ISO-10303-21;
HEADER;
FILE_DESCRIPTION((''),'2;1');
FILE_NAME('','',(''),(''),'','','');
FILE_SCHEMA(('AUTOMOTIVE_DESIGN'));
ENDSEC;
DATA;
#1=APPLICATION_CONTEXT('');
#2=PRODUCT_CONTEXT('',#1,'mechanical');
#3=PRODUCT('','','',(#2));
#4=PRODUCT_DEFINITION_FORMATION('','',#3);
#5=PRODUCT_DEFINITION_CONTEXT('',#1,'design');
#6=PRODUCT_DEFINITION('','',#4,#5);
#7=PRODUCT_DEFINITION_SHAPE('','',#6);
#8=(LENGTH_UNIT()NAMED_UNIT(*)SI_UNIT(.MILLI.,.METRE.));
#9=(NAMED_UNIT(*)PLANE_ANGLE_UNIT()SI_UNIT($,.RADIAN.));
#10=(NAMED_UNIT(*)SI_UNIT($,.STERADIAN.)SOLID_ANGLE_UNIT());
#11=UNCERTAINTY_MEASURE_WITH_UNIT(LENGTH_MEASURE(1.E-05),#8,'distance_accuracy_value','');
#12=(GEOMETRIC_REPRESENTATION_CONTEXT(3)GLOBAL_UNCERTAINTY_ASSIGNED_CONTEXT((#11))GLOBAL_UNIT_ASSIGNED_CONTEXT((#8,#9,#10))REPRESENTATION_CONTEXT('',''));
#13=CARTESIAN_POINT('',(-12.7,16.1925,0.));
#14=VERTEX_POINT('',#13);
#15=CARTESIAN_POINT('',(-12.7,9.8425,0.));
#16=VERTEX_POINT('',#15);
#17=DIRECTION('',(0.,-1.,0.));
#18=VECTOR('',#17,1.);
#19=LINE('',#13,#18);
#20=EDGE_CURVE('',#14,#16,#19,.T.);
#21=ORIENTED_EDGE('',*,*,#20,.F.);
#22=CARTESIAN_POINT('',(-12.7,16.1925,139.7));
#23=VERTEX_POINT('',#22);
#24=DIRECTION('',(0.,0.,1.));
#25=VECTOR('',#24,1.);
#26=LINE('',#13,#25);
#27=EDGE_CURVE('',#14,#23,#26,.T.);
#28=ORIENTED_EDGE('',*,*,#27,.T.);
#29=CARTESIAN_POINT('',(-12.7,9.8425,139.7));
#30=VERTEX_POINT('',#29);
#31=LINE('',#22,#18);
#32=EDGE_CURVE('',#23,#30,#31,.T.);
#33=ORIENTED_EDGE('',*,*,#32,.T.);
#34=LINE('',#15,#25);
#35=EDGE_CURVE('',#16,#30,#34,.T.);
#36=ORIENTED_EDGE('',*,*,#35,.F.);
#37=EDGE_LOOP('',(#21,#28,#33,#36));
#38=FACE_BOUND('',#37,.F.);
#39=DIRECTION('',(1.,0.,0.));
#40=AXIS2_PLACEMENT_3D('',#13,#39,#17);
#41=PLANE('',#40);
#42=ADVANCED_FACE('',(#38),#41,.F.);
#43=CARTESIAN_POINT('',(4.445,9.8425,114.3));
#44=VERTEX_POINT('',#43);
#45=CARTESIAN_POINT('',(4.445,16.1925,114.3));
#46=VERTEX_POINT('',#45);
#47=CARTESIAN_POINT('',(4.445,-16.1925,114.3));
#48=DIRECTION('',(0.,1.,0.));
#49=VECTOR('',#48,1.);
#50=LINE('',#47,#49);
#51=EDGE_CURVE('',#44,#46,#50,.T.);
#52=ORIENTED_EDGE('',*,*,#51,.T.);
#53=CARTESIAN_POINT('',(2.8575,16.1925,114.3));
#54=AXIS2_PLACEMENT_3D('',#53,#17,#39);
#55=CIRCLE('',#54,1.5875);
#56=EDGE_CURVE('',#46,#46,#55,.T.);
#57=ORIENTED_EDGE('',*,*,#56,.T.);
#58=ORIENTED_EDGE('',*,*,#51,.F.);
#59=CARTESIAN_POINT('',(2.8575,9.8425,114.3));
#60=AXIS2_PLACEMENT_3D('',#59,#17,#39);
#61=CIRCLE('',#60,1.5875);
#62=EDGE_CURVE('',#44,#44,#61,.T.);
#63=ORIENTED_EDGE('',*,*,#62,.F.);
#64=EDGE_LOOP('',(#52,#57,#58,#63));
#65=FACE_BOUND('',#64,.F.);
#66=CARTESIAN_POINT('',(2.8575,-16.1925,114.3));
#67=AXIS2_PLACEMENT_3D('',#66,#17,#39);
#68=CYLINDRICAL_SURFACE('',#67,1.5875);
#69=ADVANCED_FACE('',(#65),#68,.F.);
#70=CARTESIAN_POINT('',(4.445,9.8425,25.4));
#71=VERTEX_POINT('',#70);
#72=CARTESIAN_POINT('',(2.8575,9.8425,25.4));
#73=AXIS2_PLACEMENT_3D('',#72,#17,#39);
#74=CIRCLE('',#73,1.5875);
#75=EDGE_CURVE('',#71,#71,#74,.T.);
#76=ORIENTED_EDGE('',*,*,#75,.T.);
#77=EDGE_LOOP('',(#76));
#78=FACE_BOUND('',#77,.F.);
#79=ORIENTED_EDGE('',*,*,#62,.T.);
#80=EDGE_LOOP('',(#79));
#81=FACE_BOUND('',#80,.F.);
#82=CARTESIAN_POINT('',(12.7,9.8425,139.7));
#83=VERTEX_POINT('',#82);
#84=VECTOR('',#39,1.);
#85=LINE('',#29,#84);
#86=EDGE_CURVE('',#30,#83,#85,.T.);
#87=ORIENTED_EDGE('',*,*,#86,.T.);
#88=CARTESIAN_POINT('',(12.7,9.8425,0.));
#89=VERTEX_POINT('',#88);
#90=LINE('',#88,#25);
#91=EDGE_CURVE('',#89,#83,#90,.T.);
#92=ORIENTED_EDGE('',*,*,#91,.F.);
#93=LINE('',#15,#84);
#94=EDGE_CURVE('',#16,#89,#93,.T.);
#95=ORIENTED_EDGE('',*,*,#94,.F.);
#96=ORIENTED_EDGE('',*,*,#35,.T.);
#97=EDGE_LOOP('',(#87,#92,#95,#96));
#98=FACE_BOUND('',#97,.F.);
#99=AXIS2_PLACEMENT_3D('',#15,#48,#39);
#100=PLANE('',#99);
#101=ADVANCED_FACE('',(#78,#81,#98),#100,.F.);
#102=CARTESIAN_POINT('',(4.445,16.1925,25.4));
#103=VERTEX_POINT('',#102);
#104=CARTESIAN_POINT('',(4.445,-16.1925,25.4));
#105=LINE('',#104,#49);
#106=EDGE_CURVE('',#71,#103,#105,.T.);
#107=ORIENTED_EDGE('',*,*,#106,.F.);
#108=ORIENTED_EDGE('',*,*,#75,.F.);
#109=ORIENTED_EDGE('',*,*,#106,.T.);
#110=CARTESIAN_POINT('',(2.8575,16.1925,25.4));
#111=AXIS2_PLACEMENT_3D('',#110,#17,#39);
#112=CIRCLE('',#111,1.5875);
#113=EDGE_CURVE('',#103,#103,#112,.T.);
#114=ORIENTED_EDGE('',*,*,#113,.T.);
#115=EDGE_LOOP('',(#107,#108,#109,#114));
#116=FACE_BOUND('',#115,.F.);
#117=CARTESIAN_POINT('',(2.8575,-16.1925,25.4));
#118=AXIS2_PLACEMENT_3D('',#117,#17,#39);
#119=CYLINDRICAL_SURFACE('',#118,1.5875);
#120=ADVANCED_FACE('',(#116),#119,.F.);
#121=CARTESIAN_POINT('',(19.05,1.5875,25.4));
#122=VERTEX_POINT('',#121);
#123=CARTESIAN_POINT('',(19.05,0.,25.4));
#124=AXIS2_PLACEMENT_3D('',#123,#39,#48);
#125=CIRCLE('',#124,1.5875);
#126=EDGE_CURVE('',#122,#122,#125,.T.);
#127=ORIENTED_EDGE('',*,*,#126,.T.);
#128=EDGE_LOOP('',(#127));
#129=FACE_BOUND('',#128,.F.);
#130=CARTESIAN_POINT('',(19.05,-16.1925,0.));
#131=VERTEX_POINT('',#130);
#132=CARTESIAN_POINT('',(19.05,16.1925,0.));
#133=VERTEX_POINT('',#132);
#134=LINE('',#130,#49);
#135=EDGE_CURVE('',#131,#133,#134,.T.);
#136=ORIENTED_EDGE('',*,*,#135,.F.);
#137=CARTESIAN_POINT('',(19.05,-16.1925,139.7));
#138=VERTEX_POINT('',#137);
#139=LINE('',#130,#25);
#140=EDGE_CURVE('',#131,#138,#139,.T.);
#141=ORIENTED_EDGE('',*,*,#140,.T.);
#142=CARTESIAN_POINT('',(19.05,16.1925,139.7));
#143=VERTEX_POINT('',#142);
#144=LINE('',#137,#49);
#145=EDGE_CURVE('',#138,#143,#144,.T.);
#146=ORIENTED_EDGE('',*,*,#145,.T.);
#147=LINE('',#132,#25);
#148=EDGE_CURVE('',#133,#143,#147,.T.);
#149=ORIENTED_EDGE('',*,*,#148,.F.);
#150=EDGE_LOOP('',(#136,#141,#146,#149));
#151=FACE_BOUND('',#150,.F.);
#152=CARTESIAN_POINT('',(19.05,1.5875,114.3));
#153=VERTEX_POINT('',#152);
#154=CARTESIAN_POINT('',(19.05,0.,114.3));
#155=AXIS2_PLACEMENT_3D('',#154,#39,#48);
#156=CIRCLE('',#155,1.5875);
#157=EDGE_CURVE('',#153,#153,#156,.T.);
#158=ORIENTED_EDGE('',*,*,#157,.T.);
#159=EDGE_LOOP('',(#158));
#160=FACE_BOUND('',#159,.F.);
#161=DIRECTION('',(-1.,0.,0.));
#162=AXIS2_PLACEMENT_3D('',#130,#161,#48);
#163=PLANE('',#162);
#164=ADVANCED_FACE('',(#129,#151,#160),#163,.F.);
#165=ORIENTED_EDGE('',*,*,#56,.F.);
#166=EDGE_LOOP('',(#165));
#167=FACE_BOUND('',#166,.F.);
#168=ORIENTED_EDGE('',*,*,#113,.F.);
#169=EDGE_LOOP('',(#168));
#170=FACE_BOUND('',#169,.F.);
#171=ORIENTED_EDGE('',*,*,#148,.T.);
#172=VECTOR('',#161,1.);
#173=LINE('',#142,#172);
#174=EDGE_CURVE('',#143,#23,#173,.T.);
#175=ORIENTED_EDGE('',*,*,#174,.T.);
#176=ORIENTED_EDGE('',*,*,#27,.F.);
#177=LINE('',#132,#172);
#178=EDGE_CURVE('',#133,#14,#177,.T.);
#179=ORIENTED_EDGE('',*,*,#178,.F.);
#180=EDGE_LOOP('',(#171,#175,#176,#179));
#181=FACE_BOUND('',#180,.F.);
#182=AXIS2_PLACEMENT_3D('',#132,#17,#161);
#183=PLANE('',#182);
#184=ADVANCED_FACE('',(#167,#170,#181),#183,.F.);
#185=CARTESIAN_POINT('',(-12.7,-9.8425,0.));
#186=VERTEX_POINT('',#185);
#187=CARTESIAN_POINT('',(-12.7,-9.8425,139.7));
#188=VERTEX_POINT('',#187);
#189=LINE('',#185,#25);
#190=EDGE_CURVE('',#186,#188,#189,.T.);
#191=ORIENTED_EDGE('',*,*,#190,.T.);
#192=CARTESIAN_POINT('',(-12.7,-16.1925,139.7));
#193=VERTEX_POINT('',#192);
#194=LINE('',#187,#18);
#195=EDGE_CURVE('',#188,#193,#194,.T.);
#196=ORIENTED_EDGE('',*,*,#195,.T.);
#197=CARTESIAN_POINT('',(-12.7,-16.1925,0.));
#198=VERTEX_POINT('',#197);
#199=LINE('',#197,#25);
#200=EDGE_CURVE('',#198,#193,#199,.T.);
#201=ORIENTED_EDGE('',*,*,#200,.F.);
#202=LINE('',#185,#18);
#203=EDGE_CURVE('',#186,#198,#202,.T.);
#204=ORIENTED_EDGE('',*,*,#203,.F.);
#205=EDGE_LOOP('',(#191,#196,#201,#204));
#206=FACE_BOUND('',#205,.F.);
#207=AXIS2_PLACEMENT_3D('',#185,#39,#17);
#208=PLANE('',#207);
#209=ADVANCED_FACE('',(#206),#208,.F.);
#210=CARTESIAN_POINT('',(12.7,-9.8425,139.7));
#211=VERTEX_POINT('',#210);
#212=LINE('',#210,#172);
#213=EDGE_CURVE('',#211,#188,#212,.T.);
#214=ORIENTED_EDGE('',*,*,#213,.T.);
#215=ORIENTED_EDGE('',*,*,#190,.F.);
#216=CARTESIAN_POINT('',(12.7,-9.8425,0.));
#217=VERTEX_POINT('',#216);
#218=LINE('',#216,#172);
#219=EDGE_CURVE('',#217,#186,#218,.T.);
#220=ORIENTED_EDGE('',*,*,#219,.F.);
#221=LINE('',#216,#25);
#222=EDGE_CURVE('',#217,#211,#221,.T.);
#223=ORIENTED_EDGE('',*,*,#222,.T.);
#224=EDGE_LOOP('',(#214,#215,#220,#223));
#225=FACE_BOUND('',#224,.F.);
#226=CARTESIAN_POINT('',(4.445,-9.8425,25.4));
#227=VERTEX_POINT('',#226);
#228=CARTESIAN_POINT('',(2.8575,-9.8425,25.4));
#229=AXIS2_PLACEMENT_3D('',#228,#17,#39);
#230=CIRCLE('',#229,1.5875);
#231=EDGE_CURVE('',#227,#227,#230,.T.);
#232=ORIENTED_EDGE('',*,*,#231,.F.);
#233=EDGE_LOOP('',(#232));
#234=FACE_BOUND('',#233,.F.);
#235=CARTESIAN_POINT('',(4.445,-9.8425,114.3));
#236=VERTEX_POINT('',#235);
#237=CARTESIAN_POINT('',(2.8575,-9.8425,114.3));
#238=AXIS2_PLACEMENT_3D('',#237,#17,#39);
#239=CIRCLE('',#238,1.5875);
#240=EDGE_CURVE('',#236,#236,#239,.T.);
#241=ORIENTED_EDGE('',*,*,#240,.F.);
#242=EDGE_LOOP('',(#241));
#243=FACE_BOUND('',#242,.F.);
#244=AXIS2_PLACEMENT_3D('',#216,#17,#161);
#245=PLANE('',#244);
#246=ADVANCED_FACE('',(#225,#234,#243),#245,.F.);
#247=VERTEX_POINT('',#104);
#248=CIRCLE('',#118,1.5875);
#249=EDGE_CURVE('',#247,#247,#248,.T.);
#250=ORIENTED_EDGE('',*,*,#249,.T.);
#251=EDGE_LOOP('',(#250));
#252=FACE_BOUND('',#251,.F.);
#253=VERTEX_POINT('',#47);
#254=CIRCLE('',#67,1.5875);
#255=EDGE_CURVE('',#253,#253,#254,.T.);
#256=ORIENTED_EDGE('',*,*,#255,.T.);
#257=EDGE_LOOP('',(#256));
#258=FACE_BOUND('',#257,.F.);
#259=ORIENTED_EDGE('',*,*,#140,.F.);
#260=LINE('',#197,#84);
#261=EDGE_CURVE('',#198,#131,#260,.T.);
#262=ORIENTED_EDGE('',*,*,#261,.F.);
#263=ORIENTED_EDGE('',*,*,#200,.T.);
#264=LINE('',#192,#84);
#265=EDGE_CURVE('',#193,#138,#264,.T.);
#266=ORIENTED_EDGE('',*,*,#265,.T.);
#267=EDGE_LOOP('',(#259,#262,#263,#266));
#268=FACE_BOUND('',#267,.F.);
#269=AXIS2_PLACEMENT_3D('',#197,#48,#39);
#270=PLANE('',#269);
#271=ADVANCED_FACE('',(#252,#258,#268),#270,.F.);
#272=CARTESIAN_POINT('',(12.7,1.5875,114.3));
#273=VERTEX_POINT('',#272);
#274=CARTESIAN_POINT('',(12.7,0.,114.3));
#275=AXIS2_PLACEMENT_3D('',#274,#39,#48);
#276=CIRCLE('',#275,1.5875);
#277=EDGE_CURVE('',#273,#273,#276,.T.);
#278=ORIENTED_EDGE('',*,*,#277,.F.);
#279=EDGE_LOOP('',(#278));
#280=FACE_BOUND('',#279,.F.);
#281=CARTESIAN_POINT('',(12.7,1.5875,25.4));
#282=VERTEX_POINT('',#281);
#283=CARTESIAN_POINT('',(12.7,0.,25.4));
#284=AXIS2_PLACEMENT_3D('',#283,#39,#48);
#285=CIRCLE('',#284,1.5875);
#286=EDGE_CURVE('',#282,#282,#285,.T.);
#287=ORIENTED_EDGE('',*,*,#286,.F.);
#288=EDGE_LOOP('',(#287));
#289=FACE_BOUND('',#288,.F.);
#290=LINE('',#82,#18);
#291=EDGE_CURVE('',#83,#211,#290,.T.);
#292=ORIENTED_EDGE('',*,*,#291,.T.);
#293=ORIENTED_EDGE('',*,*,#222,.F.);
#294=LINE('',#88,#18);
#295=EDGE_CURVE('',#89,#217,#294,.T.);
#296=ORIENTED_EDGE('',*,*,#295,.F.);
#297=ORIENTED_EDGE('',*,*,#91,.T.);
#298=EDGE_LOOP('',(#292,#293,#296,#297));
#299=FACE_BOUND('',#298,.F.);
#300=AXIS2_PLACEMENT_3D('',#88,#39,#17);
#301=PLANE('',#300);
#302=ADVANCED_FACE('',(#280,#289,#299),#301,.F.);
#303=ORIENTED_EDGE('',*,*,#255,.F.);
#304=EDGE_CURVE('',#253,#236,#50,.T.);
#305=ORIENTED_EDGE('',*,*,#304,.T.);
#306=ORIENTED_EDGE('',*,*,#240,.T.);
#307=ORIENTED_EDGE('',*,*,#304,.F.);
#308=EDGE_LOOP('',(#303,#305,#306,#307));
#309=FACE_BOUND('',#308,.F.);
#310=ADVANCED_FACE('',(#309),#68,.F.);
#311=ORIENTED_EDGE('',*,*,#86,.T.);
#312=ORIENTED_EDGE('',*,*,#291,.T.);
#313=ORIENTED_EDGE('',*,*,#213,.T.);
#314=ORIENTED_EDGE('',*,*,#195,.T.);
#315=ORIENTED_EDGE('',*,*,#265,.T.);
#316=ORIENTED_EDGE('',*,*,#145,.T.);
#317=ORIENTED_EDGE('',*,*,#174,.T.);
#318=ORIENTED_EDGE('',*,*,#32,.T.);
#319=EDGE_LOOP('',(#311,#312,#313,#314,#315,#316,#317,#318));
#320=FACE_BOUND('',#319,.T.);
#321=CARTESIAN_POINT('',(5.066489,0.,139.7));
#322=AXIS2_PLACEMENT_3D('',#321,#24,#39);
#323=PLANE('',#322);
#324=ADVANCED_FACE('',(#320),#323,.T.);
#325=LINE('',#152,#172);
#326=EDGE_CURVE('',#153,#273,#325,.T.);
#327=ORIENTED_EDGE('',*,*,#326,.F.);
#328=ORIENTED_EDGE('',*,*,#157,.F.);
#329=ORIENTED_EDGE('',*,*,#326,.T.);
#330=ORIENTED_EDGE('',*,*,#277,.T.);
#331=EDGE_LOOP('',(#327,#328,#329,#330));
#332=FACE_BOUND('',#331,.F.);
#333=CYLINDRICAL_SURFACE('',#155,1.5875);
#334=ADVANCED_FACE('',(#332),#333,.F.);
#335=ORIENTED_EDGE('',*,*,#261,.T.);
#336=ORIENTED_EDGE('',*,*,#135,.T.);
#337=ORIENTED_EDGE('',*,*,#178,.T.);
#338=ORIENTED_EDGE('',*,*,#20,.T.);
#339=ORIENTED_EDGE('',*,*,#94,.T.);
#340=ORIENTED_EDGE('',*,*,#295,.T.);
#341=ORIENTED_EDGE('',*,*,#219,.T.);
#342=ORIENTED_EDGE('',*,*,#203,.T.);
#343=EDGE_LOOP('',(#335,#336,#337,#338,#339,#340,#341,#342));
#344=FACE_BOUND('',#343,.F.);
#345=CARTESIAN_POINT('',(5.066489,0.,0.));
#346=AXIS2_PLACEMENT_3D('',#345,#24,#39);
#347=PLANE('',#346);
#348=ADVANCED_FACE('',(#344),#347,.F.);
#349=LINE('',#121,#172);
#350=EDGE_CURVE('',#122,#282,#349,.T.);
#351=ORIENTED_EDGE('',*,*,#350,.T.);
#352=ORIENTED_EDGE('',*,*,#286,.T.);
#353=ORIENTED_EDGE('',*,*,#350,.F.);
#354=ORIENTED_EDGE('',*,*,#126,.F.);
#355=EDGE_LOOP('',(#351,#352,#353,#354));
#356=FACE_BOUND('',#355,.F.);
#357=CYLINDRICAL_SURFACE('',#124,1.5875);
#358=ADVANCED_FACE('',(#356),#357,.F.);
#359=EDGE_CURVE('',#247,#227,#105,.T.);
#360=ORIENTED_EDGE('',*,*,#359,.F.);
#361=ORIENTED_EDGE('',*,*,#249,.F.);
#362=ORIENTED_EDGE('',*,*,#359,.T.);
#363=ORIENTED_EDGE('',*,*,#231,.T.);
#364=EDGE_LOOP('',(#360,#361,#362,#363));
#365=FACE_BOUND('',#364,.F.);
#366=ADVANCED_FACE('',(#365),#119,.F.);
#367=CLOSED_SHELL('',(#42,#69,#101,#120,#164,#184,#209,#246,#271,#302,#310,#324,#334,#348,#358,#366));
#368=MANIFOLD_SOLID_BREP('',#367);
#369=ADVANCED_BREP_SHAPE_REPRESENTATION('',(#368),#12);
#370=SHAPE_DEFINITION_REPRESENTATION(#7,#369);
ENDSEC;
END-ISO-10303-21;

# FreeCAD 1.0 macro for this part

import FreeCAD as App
import Part
import Sketcher

V = App.Vector
Q = App.Units.Quantity

doc = App.newDocument("Part")
body = doc.addObject("PartDesign::Body", "Body")

# Sketch on XY plane
sketch1 = body.newObject("Sketcher::SketchObject", "Sketch")
sketch1.AttachmentSupport = (doc.getObject("XY_Plane"), [""])
sketch1.MapMode = "FlatFace"
sketch1.addGeometry([
    Part.LineSegment(V(13, -10, 0), V(-13, -10, 0)),  # 0
    Part.LineSegment(V(-13, -10, 0), V(-13, -16, 0)),  # 1
    Part.LineSegment(V(-13, -16, 0), V(19, -16, 0)),  # 2
    Part.LineSegment(V(19, -16, 0), V(19, 16, 0)),  # 3
    Part.LineSegment(V(19, 16, 0), V(-13, 16, 0)),  # 4
    Part.LineSegment(V(-13, 16, 0), V(-13, 10, 0)),  # 5
    Part.LineSegment(V(-13, 10, 0), V(13, 10, 0)),  # 6
    Part.LineSegment(V(13, 10, 0), V(13, -10, 0)),  # 7
], False)
sketch1.addConstraint([
    Sketcher.Constraint("Coincident", 0, 2, 1, 1),
    Sketcher.Constraint("Coincident", 1, 2, 2, 1),
    Sketcher.Constraint("Coincident", 2, 2, 3, 1),
    Sketcher.Constraint("Coincident", 3, 2, 4, 1),
    Sketcher.Constraint("Coincident", 4, 2, 5, 1),
    Sketcher.Constraint("Coincident", 5, 2, 6, 1),
    Sketcher.Constraint("Coincident", 6, 2, 7, 1),
    Sketcher.Constraint("Coincident", 7, 2, 0, 1),
    Sketcher.Constraint("Horizontal", 0),
    Sketcher.Constraint("Vertical", 1),
    Sketcher.Constraint("Horizontal", 2),
    Sketcher.Constraint("Vertical", 3),
    Sketcher.Constraint("Horizontal", 4),
    Sketcher.Constraint("Vertical", 5),
    Sketcher.Constraint("Horizontal", 6),
    Sketcher.Constraint("Vertical", 7),
    Sketcher.Constraint("Symmetric", 0, 2, 6, 2, -1, 1),
    Sketcher.Constraint("Symmetric", 1, 2, 4, 2, -1),
    Sketcher.Constraint("DistanceX", 0, 2, 0, 1, Q("1 in")),
    Sketcher.Constraint("DistanceX", 2, 1, 2, 2, Q("1.25 in")),
    Sketcher.Constraint("DistanceY", 1, 2, 1, 1, Q("0.25 in")),
    Sketcher.Constraint("DistanceY", 3, 1, 3, 2, Q("1.275 in")),
])
pad1 = body.newObject("PartDesign::Pad", "Pad")
pad1.Profile = sketch1
pad1.Length = Q("5.5 in")

# Sketch on YZ plane
sketch2 = body.newObject("Sketcher::SketchObject", "Sketch001")
sketch2.AttachmentSupport = (doc.getObject("YZ_Plane"), [""])
sketch2.MapMode = "FlatFace"
sketch2.AttachmentOffset = App.Placement(V(0, 0, 0.75 * 25.4), App.Rotation())
sketch2.addGeometry([
    Part.Circle(V(0, 114.3, 0), V(0, 0, 1), 1.6),
    Part.Circle(V(0, 25.4, 0), V(0, 0, 1), 1.6),
], False)
sketch2.addConstraint([
    Sketcher.Constraint("Equal", 0, 1),
    Sketcher.Constraint("PointOnObject", 0, 3, -2),
    Sketcher.Constraint("PointOnObject", 1, 3, -2),
    Sketcher.Constraint("Diameter", 0, Q("0.125 in")),
    Sketcher.Constraint("DistanceY", -1, 1, 1, 3, Q("1 in")),
    Sketcher.Constraint("DistanceY", -1, 1, 0, 3, Q("4.5 in")),
])
pocket1 = body.newObject("PartDesign::Pocket", "Pocket")
pocket1.Profile = sketch2
pocket1.Type = "ThroughAll"

# Sketch on XZ plane
sketch3 = body.newObject("Sketcher::SketchObject", "Sketch002")
sketch3.AttachmentSupport = (doc.getObject("XZ_Plane"), [""])
sketch3.MapMode = "FlatFace"
sketch3.AttachmentOffset = App.Placement(V(0, 0, 0.6375 * 25.4), App.Rotation())
sketch3.addGeometry([
    Part.Circle(V(2.9, 114.3, 0), V(0, 0, 1), 1.6),
    Part.Circle(V(2.9, 25.4, 0), V(0, 0, 1), 1.6),
], False)
sketch3.addConstraint([
    Sketcher.Constraint("Equal", 0, 1),
    Sketcher.Constraint("Vertical", 0, 3, 1, 3),
    Sketcher.Constraint("Diameter", 0, Q("0.125 in")),
    Sketcher.Constraint("DistanceY", -1, 1, 1, 3, Q("1 in")),
    Sketcher.Constraint("DistanceY", -1, 1, 0, 3, Q("4.5 in")),
    Sketcher.Constraint("DistanceX", -1, 1, 0, 3, Q("0.1125 in")),
])
pocket2 = body.newObject("PartDesign::Pocket", "Pocket001")
pocket2.Profile = sketch3
pocket2.Type = "ThroughAll"

doc.recompute()
